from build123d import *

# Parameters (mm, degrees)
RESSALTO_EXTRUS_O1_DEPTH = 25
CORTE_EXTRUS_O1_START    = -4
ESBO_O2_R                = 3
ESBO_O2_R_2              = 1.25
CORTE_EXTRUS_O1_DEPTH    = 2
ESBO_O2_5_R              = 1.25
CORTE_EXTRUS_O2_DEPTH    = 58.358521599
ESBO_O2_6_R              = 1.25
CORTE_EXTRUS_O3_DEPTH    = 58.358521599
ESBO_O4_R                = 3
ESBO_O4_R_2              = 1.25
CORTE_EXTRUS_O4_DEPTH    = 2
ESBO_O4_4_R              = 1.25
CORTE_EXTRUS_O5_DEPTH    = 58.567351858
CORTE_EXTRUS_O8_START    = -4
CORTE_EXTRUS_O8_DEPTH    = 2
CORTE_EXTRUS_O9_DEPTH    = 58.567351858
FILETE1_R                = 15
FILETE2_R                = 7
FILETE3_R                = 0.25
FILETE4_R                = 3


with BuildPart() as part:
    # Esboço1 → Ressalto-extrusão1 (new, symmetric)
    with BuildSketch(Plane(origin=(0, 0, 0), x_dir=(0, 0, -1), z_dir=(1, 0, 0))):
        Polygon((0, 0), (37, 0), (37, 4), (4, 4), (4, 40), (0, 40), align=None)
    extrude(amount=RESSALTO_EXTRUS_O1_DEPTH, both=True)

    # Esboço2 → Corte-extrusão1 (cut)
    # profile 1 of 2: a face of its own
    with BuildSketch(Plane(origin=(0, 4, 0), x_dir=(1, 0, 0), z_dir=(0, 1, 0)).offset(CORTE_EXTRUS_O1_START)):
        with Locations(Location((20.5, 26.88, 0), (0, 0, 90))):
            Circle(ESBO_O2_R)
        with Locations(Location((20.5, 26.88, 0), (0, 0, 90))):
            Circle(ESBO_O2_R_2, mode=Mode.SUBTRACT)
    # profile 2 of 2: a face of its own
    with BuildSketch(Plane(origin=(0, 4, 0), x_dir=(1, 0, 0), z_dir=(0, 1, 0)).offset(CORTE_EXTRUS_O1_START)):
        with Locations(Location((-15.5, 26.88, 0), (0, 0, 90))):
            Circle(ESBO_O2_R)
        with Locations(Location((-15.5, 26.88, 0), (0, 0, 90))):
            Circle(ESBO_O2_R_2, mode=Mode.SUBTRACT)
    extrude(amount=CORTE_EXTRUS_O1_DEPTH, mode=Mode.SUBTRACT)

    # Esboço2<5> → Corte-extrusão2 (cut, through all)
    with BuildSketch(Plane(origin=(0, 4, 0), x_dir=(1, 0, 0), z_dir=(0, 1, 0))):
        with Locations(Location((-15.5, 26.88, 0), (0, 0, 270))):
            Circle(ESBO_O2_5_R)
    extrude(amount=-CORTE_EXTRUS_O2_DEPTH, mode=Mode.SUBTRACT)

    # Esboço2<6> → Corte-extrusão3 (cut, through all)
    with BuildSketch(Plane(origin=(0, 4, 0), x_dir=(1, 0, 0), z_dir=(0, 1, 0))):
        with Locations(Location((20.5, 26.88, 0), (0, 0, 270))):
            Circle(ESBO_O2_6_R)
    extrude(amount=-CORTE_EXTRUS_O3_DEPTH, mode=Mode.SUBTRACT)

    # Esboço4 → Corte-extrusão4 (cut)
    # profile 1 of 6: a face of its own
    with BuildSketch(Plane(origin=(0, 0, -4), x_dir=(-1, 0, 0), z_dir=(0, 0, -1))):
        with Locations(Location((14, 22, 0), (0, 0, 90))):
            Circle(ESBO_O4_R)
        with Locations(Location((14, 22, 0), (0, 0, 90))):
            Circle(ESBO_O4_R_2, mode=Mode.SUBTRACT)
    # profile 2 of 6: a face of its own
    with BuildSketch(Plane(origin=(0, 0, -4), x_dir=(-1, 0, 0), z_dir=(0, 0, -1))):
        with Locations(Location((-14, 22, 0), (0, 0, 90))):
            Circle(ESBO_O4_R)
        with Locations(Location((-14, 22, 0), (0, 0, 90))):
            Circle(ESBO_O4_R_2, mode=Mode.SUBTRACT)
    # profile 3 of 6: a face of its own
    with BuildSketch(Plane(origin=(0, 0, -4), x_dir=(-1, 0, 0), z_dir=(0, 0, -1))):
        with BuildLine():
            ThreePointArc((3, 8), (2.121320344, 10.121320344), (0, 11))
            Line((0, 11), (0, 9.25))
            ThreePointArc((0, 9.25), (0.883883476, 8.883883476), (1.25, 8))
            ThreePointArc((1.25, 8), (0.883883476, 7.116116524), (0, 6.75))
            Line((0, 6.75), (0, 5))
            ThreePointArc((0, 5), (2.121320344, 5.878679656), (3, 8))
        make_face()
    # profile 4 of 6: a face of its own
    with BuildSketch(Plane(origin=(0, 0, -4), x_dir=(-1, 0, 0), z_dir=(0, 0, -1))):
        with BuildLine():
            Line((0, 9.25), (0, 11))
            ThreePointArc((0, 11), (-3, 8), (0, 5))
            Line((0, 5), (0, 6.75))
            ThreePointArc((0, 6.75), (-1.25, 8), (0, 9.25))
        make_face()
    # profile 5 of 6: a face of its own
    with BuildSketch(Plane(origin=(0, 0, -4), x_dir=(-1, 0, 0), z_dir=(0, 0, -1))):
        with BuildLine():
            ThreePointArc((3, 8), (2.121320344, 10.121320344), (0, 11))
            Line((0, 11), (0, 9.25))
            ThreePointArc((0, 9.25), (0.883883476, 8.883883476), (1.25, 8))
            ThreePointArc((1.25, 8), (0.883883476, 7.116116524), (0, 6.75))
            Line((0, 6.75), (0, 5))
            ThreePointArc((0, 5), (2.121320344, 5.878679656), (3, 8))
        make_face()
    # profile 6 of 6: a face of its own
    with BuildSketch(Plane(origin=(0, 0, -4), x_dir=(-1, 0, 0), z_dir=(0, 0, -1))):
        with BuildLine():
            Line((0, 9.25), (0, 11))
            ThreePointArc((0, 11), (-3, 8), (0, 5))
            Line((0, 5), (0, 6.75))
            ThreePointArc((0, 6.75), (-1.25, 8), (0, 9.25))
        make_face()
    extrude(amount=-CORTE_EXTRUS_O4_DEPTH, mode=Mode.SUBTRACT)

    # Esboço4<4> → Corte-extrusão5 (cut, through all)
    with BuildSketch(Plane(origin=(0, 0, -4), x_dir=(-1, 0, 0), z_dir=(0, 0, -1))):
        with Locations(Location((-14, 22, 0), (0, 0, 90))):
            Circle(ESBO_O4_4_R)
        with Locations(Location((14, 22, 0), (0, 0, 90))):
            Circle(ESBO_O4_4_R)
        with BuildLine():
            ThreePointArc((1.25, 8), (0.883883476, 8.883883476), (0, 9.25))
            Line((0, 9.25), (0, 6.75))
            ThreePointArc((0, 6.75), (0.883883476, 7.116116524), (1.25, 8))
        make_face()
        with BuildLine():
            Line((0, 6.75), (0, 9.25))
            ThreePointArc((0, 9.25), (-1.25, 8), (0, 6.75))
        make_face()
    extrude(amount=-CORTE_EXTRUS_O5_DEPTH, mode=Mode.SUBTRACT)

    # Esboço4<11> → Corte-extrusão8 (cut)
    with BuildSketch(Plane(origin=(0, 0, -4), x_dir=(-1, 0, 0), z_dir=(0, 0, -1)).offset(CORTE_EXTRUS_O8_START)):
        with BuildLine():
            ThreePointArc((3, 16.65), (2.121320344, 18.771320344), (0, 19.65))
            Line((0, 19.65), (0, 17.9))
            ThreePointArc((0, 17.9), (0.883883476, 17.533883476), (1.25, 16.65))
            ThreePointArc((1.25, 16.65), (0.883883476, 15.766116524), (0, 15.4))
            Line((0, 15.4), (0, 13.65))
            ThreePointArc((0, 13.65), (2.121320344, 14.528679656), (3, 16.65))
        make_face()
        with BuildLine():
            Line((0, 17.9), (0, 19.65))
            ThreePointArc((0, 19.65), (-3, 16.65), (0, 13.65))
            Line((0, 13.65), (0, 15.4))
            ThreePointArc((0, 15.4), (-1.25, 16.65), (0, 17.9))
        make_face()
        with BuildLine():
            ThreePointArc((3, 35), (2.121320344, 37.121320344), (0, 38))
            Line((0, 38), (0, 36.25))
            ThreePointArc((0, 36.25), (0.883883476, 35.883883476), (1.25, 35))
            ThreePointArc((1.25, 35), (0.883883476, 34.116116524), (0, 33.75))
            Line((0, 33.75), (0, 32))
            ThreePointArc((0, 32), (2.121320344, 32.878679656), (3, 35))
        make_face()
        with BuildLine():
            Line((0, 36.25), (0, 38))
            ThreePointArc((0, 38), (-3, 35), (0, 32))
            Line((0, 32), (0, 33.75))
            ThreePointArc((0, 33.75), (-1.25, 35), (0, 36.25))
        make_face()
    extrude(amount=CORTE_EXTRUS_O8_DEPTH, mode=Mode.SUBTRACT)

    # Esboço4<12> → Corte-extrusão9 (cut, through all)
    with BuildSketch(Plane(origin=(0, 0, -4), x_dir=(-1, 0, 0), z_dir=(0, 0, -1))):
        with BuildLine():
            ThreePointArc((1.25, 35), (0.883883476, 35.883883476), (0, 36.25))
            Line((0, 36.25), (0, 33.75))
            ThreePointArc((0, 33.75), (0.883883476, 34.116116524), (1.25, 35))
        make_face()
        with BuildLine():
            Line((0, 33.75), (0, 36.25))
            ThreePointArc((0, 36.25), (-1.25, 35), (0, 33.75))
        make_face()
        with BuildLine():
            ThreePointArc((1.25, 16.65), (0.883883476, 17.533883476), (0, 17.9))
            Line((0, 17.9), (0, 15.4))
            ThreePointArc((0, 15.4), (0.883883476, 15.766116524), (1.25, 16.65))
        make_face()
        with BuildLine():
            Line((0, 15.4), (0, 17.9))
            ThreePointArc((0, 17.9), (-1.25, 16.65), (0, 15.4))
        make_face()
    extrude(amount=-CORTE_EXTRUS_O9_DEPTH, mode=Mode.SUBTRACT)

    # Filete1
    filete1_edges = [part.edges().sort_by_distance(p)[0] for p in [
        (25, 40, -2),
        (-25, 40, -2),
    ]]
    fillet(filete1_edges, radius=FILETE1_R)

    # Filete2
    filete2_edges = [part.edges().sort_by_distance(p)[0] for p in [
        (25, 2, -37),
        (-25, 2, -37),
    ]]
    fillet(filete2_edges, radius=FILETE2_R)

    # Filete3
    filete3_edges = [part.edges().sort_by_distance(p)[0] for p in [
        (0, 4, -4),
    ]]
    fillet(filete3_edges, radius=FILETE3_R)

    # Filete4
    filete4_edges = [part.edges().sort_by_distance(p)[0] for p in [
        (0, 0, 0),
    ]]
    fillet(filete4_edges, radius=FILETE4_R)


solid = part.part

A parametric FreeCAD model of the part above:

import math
import FreeCAD as App
import Part
import Sketcher


def edges_at(feature, points):
    """Names of the edges that pass closest to the given points."""
    edges = feature.Shape.Edges
    near = lambda p: min(range(len(edges)), key=lambda i: edges[i].distToShape(Part.Vertex(*p))[0])
    return sorted({f"Edge{near(p) + 1}" for p in points})

doc = App.newDocument("Part")
body = doc.addObject("PartDesign::Body", "Body")

# Sketch on YZ plane
sketch1 = body.newObject("Sketcher::SketchObject", "Sketch")
sketch1.AttachmentSupport = (doc.getObject("YZ_Plane"), [""])
sketch1.MapMode = "FlatFace"
sketch1.addGeometry([
    Part.LineSegment(App.Vector(0, 0, 0), App.Vector(0, -37, 0)),  # 0
    Part.LineSegment(App.Vector(0, -37, 0), App.Vector(4, -37, 0)),  # 1
    Part.LineSegment(App.Vector(4, -37, 0), App.Vector(4, -4, 0)),  # 2
    Part.LineSegment(App.Vector(4, -4, 0), App.Vector(40, -4, 0)),  # 3
    Part.LineSegment(App.Vector(40, -4, 0), App.Vector(40, 0, 0)),  # 4
    Part.LineSegment(App.Vector(40, 0, 0), App.Vector(0, 0, 0)),  # 5
], False)
sketch1.addConstraint([
    Sketcher.Constraint("Coincident", 0, 2, 1, 1),
    Sketcher.Constraint("Coincident", 1, 2, 2, 1),
    Sketcher.Constraint("Coincident", 2, 2, 3, 1),
    Sketcher.Constraint("Coincident", 3, 2, 4, 1),
    Sketcher.Constraint("Coincident", 4, 2, 5, 1),
    Sketcher.Constraint("Coincident", 5, 2, 0, 1),
    Sketcher.Constraint("Vertical", 0),
    Sketcher.Constraint("Horizontal", 1),
    Sketcher.Constraint("Vertical", 2),
    Sketcher.Constraint("Horizontal", 3),
    Sketcher.Constraint("Vertical", 4),
    Sketcher.Constraint("Horizontal", 5),
    Sketcher.Constraint("Coincident", 5, 2, -1, 1),
    Sketcher.Constraint("Equal", 1, 4),
    Sketcher.Constraint("DistanceX", 1, 1, 1, 2, 4.0),
    Sketcher.Constraint("DistanceX", 3, 1, 3, 2, 36.0),
    Sketcher.Constraint("DistanceY", 0, 2, 0, 1, 37.0),
])
pad1 = body.newObject("PartDesign::Pad", "Pad")
pad1.Profile = sketch1
pad1.Length = 50
pad1.Midplane = True

# Sketch on XZ plane
sketch2 = body.newObject("Sketcher::SketchObject", "Sketch001")
sketch2.AttachmentSupport = (doc.getObject("XZ_Plane"), [""])
sketch2.MapMode = "FlatFace"
sketch2.addGeometry([
    Part.Circle(App.Vector(20.5, -26.9, 0), App.Vector(0, 0, 1), 3),
    Part.Circle(App.Vector(20.5, -26.9, 0), App.Vector(0, 0, 1), 1.2),
    Part.Circle(App.Vector(-15.5, -26.9, 0), App.Vector(0, 0, 1), 3),
    Part.Circle(App.Vector(-15.5, -26.9, 0), App.Vector(0, 0, 1), 1.2),
], False)
sketch2.addConstraint([
    Sketcher.Constraint("Coincident", 1, 3, 0, 3),
    Sketcher.Constraint("Coincident", 3, 3, 2, 3),
    Sketcher.Constraint("Equal", 0, 2),
    Sketcher.Constraint("Equal", 1, 3),
    Sketcher.Constraint("Horizontal", 1, 3, 2, 3),
    Sketcher.Constraint("Diameter", 0, 6.0),
    Sketcher.Constraint("Diameter", 1, 2.5),
    Sketcher.Constraint("DistanceX", 2, 3, 0, 3, 36.0),
    Sketcher.Constraint("DistanceX", -1, 1, 0, 3, 20.5),
    Sketcher.Constraint("DistanceY", 0, 3, -1, 1, 26.88),
])
pocket1 = body.newObject("PartDesign::Pocket", "Pocket")
pocket1.Profile = sketch2
pocket1.Length = 2

# Sketch on XZ plane
sketch3 = body.newObject("Sketcher::SketchObject", "Sketch002")
sketch3.AttachmentSupport = (doc.getObject("XZ_Plane"), [""])
sketch3.MapMode = "FlatFace"
sketch3.AttachmentOffset = App.Placement(App.Vector(0, 0, -4), App.Rotation())
sketch3.addGeometry(Part.Circle(App.Vector(-15.5, -26.9, 0), App.Vector(0, 0, 1), 1.2), False)
sketch3.addConstraint([
    Sketcher.Constraint("Diameter", 0, 2.5),
    Sketcher.Constraint("DistanceX", 0, 3, -1, 1, 15.5),
    Sketcher.Constraint("DistanceY", 0, 3, -1, 1, 26.88),
])
pocket2 = body.newObject("PartDesign::Pocket", "Pocket001")
pocket2.Profile = sketch3
pocket2.Type = "ThroughAll"
pocket2.Reversed = True

# Sketch on XZ plane
sketch4 = body.newObject("Sketcher::SketchObject", "Sketch003")
sketch4.AttachmentSupport = (doc.getObject("XZ_Plane"), [""])
sketch4.MapMode = "FlatFace"
sketch4.AttachmentOffset = App.Placement(App.Vector(0, 0, -4), App.Rotation())
sketch4.addGeometry(Part.Circle(App.Vector(20.5, -26.9, 0), App.Vector(0, 0, 1), 1.2), False)
sketch4.addConstraint([
    Sketcher.Constraint("Diameter", 0, 2.5),
    Sketcher.Constraint("DistanceX", -1, 1, 0, 3, 20.5),
    Sketcher.Constraint("DistanceY", 0, 3, -1, 1, 26.88),
])
pocket3 = body.newObject("PartDesign::Pocket", "Pocket002")
pocket3.Profile = sketch4
pocket3.Type = "ThroughAll"
pocket3.Reversed = True

# Sketch on XY plane
sketch5 = body.newObject("Sketcher::SketchObject", "Sketch004")
sketch5.AttachmentSupport = (doc.getObject("XY_Plane"), [""])
sketch5.MapMode = "FlatFace"
sketch5.AttachmentOffset = App.Placement(App.Vector(0, 0, -4), App.Rotation())
sketch5.addGeometry([
    Part.Circle(App.Vector(-14, 22, 0), App.Vector(0, 0, 1), 3),  # 0
    Part.Circle(App.Vector(-14, 22, 0), App.Vector(0, 0, 1), 1.2),  # 1
    Part.Circle(App.Vector(14, 22, 0), App.Vector(0, 0, 1), 3),  # 2
    Part.Circle(App.Vector(14, 22, 0), App.Vector(0, 0, 1), 1.2),  # 3
    Part.ArcOfCircle(Part.Circle(App.Vector(0, 8, 0), App.Vector(0, 0, 1), 3), math.radians(90), math.radians(180)),  # 4
    Part.ArcOfCircle(Part.Circle(App.Vector(0, 8, 0), App.Vector(0, 0, 1), 3), math.radians(-90), math.radians(90)),  # 5
    Part.ArcOfCircle(Part.Circle(App.Vector(0, 8, 0), App.Vector(0, 0, 1), 3), math.radians(180), math.radians(270)),  # 6
    Part.ArcOfCircle(Part.Circle(App.Vector(0, 8, 0), App.Vector(0, 0, 1), 1.3), math.radians(90), math.radians(180)),  # 7
    Part.ArcOfCircle(Part.Circle(App.Vector(0, 8, 0), App.Vector(0, 0, 1), 1.3), math.radians(-180), math.radians(-90)),  # 8
    Part.ArcOfCircle(Part.Circle(App.Vector(0, 8, 0), App.Vector(0, 0, 1), 1.2), math.radians(-90), math.radians(90)),  # 9
], False)
sketch5.addConstraint([
    Sketcher.Constraint("Tangent", 4, 1, 5, 2),
    Sketcher.Constraint("Tangent", 5, 1, 6, 2),
    Sketcher.Constraint("Tangent", 6, 1, 4, 2),
    Sketcher.Constraint("Tangent", 7, 2, 8, 1),
    Sketcher.Constraint("Tangent", 8, 2, 9, 1),
    Sketcher.Constraint("Tangent", 9, 2, 7, 1),
    Sketcher.Constraint("Coincident", 1, 3, 0, 3),
    Sketcher.Constraint("Coincident", 3, 3, 2, 3),
    Sketcher.Constraint("Coincident", 7, 3, 4, 3),
    Sketcher.Constraint("Equal", 0, 2),
    Sketcher.Constraint("Equal", 1, 3),
    Sketcher.Constraint("Equal", 2, 4),
    Sketcher.Constraint("Equal", 3, 7),
    Sketcher.Constraint("Symmetric", 0, 3, 2, 3, -2),
    Sketcher.Constraint("PointOnObject", 4, 3, -2),
    Sketcher.Constraint("PointOnObject", 4, 1, -2),
    Sketcher.Constraint("PointOnObject", 5, 1, -2),
    Sketcher.Constraint("PointOnObject", 8, 2, -2),
    Sketcher.Constraint("PointOnObject", 9, 2, -2),
    Sketcher.Constraint("Horizontal", 9, 3, 6, 1),
    Sketcher.Constraint("Horizontal", 6, 1, 7, 2),
    Sketcher.Constraint("Diameter", 0, 6.0),
    Sketcher.Constraint("Diameter", 1, 2.5),
    Sketcher.Constraint("DistanceX", 0, 3, -1, 1, 14.0),
    Sketcher.Constraint("DistanceY", -1, 1, 0, 3, 22.0),
    Sketcher.Constraint("DistanceY", -1, 1, 4, 3, 8.0),
])
pocket4 = body.newObject("PartDesign::Pocket", "Pocket003")
pocket4.Profile = sketch5
pocket4.Length = 2
pocket4.Reversed = True

# Sketch on XY plane
sketch6 = body.newObject("Sketcher::SketchObject", "Sketch005")
sketch6.AttachmentSupport = (doc.getObject("XY_Plane"), [""])
sketch6.MapMode = "FlatFace"
sketch6.AttachmentOffset = App.Placement(App.Vector(0, 0, -4), App.Rotation())
sketch6.addGeometry([
    Part.Circle(App.Vector(14, 22, 0), App.Vector(0, 0, 1), 1.2),  # 0
    Part.Circle(App.Vector(-14, 22, 0), App.Vector(0, 0, 1), 1.2),  # 1
    Part.ArcOfCircle(Part.Circle(App.Vector(0, 8, 0), App.Vector(0, 0, 1), 1.3), math.radians(90), math.radians(180)),  # 2
    Part.ArcOfCircle(Part.Circle(App.Vector(0, 8, 0), App.Vector(0, 0, 1), 1.2), math.radians(-90), math.radians(90)),  # 3
    Part.ArcOfCircle(Part.Circle(App.Vector(0, 8, 0), App.Vector(0, 0, 1), 1.3), math.radians(-180), math.radians(-90)),  # 4
], False)
sketch6.addConstraint([
    Sketcher.Constraint("Tangent", 2, 1, 3, 2),
    Sketcher.Constraint("Tangent", 3, 1, 4, 2),
    Sketcher.Constraint("Tangent", 4, 1, 2, 2),
    Sketcher.Constraint("Equal", 0, 1),
    Sketcher.Constraint("Equal", 1, 2),
    Sketcher.Constraint("Symmetric", 0, 3, 1, 3, -2),
    Sketcher.Constraint("PointOnObject", 2, 3, -2),
    Sketcher.Constraint("PointOnObject", 2, 1, -2),
    Sketcher.Constraint("PointOnObject", 3, 1, -2),
    Sketcher.Constraint("Horizontal", 3, 3, 4, 1),
    Sketcher.Constraint("Diameter", 0, 2.5),
    Sketcher.Constraint("DistanceX", -1, 1, 0, 3, 14.0),
    Sketcher.Constraint("DistanceY", -1, 1, 0, 3, 22.0),
    Sketcher.Constraint("DistanceY", -1, 1, 2, 3, 8.0),
])
pocket5 = body.newObject("PartDesign::Pocket", "Pocket004")
pocket5.Profile = sketch6
pocket5.Type = "ThroughAll"
pocket5.Reversed = True

# Sketch on XY plane
sketch7 = body.newObject("Sketcher::SketchObject", "Sketch006")
sketch7.AttachmentSupport = (doc.getObject("XY_Plane"), [""])
sketch7.MapMode = "FlatFace"
sketch7.addGeometry([
    Part.ArcOfCircle(Part.Circle(App.Vector(0, 16.7, 0), App.Vector(0, 0, 1), 3), math.radians(90), math.radians(180)),  # 0
    Part.ArcOfCircle(Part.Circle(App.Vector(0, 16.6, 0), App.Vector(0, 0, 1), 3), math.radians(-90), math.radians(90)),  # 1
    Part.ArcOfCircle(Part.Circle(App.Vector(0, 16.6, 0), App.Vector(0, 0, 1), 3), math.radians(180), math.radians(270)),  # 2
    Part.ArcOfCircle(Part.Circle(App.Vector(0, 16.7, 0), App.Vector(0, 0, 1), 1.3), math.radians(-180), math.radians(-90)),  # 3
    Part.ArcOfCircle(Part.Circle(App.Vector(0, 16.6, 0), App.Vector(0, 0, 1), 1.2), math.radians(-90), math.radians(90)),  # 4
    Part.ArcOfCircle(Part.Circle(App.Vector(0, 16.6, 0), App.Vector(0, 0, 1), 1.3), math.radians(90), math.radians(180)),  # 5
    Part.ArcOfCircle(Part.Circle(App.Vector(0, 35, 0), App.Vector(0, 0, 1), 3), math.radians(90), math.radians(180)),  # 6
    Part.ArcOfCircle(Part.Circle(App.Vector(0, 35, 0), App.Vector(0, 0, 1), 3), math.radians(-90), math.radians(90)),  # 7
    Part.ArcOfCircle(Part.Circle(App.Vector(0, 35, 0), App.Vector(0, 0, 1), 3), math.radians(180), math.radians(270)),  # 8
    Part.ArcOfCircle(Part.Circle(App.Vector(0, 35, 0), App.Vector(0, 0, 1), 1.3), math.radians(-180), math.radians(-90)),  # 9
    Part.ArcOfCircle(Part.Circle(App.Vector(0, 35, 0), App.Vector(0, 0, 1), 1.2), math.radians(-90), math.radians(90)),  # 10
    Part.ArcOfCircle(Part.Circle(App.Vector(0, 35, 0), App.Vector(0, 0, 1), 1.3), math.radians(90), math.radians(180)),  # 11
], False)
sketch7.addConstraint([
    Sketcher.Constraint("Tangent", 0, 1, 1, 2),
    Sketcher.Constraint("Tangent", 1, 1, 2, 2),
    Sketcher.Constraint("Tangent", 2, 1, 0, 2),
    Sketcher.Constraint("Tangent", 3, 2, 4, 1),
    Sketcher.Constraint("Tangent", 4, 2, 5, 1),
    Sketcher.Constraint("Tangent", 5, 2, 3, 1),
    Sketcher.Constraint("Tangent", 6, 1, 7, 2),
    Sketcher.Constraint("Tangent", 7, 1, 8, 2),
    Sketcher.Constraint("Tangent", 8, 1, 6, 2),
    Sketcher.Constraint("Tangent", 9, 2, 10, 1),
    Sketcher.Constraint("Tangent", 10, 2, 11, 1),
    Sketcher.Constraint("Tangent", 11, 2, 9, 1),
    Sketcher.Constraint("Coincident", 3, 3, 0, 3),
    Sketcher.Constraint("Coincident", 9, 3, 6, 3),
    Sketcher.Constraint("Equal", 2, 6),
    Sketcher.Constraint("Equal", 5, 9),
    Sketcher.Constraint("PointOnObject", 0, 3, -2),
    Sketcher.Constraint("PointOnObject", 6, 3, -2),
    Sketcher.Constraint("PointOnObject", 0, 1, -2),
    Sketcher.Constraint("PointOnObject", 1, 1, -2),
    Sketcher.Constraint("PointOnObject", 3, 2, -2),
    Sketcher.Constraint("PointOnObject", 4, 2, -2),
    Sketcher.Constraint("PointOnObject", 6, 1, -2),
    Sketcher.Constraint("PointOnObject", 7, 1, -2),
    Sketcher.Constraint("PointOnObject", 9, 2, -2),
    Sketcher.Constraint("PointOnObject", 10, 2, -2),
    Sketcher.Constraint("Horizontal", 5, 3, 2, 1),
    Sketcher.Constraint("Horizontal", 2, 1, 5, 2),
    Sketcher.Constraint("Horizontal", 11, 3, 8, 1),
    Sketcher.Constraint("Horizontal", 8, 1, 11, 2),
    Sketcher.Constraint("Radius", 0, 3.0),
    Sketcher.Constraint("Radius", 3, 1.25),
    Sketcher.Constraint("DistanceY", -1, 1, 6, 3, 35.0),
    Sketcher.Constraint("DistanceY", -1, 1, 3, 2, 15.4),
])
pocket6 = body.newObject("PartDesign::Pocket", "Pocket005")
pocket6.Profile = sketch7
pocket6.Length = 2

# Sketch on XY plane
sketch8 = body.newObject("Sketcher::SketchObject", "Sketch007")
sketch8.AttachmentSupport = (doc.getObject("XY_Plane"), [""])
sketch8.MapMode = "FlatFace"
sketch8.AttachmentOffset = App.Placement(App.Vector(0, 0, -4), App.Rotation())
sketch8.addGeometry([
    Part.ArcOfCircle(Part.Circle(App.Vector(0, 35, 0), App.Vector(0, 0, 1), 1.3), math.radians(90), math.radians(180)),  # 0
    Part.ArcOfCircle(Part.Circle(App.Vector(0, 35, 0), App.Vector(0, 0, 1), 1.2), math.radians(-90), math.radians(90)),  # 1
    Part.ArcOfCircle(Part.Circle(App.Vector(0, 35, 0), App.Vector(0, 0, 1), 1.3), math.radians(-180), math.radians(-90)),  # 2
    Part.ArcOfCircle(Part.Circle(App.Vector(0, 16.6, 0), App.Vector(0, 0, 1), 1.3), math.radians(90), math.radians(180)),  # 3
    Part.ArcOfCircle(Part.Circle(App.Vector(0, 16.6, 0), App.Vector(0, 0, 1), 1.2), math.radians(-90), math.radians(90)),  # 4
    Part.ArcOfCircle(Part.Circle(App.Vector(0, 16.7, 0), App.Vector(0, 0, 1), 1.3), math.radians(-180), math.radians(-90)),  # 5
], False)
sketch8.addConstraint([
    Sketcher.Constraint("Tangent", 0, 1, 1, 2),
    Sketcher.Constraint("Tangent", 1, 1, 2, 2),
    Sketcher.Constraint("Tangent", 2, 1, 0, 2),
    Sketcher.Constraint("Tangent", 3, 1, 4, 2),
    Sketcher.Constraint("Tangent", 4, 1, 5, 2),
    Sketcher.Constraint("Tangent", 5, 1, 3, 2),
    Sketcher.Constraint("Equal", 2, 3),
    Sketcher.Constraint("PointOnObject", 0, 3, -2),
    Sketcher.Constraint("PointOnObject", 3, 3, -2),
    Sketcher.Constraint("PointOnObject", 0, 1, -2),
    Sketcher.Constraint("PointOnObject", 1, 1, -2),
    Sketcher.Constraint("PointOnObject", 3, 1, -2),
    Sketcher.Constraint("PointOnObject", 4, 1, -2),
    Sketcher.Constraint("Horizontal", 1, 3, 2, 1),
    Sketcher.Constraint("Horizontal", 4, 3, 5, 1),
    Sketcher.Constraint("Radius", 0, 1.25),
    Sketcher.Constraint("DistanceY", -1, 1, 0, 3, 35.0),
    Sketcher.Constraint("DistanceY", -1, 1, 3, 1, 17.9),
])
pocket7 = body.newObject("PartDesign::Pocket", "Pocket006")
pocket7.Profile = sketch8
pocket7.Type = "ThroughAll"
pocket7.Reversed = True
doc.recompute()

fillet = body.newObject("PartDesign::Fillet", "Fillet")
fillet.Base = (pocket7, edges_at(pocket7, [(25, 40, -2), (-25, 40, -2)]))
fillet.Radius = 15
doc.recompute()

fillet2 = body.newObject("PartDesign::Fillet", "Fillet001")
fillet2.Base = (fillet, edges_at(fillet, [(25, 2, -37), (-25, 2, -37)]))
fillet2.Radius = 7
doc.recompute()

fillet3 = body.newObject("PartDesign::Fillet", "Fillet002")
fillet3.Base = (fillet2, edges_at(fillet2, [(0, 4, -4)]))
fillet3.Radius = 0.25
doc.recompute()

fillet4 = body.newObject("PartDesign::Fillet", "Fillet003")
fillet4.Base = (fillet3, edges_at(fillet3, [(0, 0, 0)]))
fillet4.Radius = 3

doc.recompute()
